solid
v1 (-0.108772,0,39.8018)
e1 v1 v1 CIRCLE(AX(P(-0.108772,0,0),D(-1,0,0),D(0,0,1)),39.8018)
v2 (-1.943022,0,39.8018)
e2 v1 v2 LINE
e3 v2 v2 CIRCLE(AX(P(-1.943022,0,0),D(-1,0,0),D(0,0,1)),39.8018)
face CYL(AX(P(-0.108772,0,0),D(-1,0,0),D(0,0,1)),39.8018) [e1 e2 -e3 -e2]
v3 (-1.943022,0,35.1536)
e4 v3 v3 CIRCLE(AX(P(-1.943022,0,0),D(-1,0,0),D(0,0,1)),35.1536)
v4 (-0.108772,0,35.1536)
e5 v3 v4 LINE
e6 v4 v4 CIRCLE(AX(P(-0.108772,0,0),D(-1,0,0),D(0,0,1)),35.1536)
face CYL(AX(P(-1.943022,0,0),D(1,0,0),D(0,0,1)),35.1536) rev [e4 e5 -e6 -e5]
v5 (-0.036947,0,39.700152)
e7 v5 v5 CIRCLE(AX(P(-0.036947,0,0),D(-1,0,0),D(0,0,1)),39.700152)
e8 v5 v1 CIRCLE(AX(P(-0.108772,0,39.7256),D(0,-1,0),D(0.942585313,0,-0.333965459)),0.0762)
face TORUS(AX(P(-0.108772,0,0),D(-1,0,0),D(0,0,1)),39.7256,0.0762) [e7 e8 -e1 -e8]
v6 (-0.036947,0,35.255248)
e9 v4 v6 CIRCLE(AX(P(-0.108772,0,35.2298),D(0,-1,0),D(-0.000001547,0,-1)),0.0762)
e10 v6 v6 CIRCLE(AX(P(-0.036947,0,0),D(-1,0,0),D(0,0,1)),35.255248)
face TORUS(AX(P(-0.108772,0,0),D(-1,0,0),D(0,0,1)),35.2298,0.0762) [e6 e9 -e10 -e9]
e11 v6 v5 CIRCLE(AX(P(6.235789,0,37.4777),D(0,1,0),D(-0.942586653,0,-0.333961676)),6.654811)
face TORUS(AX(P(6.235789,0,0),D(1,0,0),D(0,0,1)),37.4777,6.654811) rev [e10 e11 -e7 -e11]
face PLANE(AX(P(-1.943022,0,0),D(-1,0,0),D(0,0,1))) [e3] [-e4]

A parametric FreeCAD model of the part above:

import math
import FreeCAD as App
import Part
import Sketcher

V = App.Vector
Q = App.Units.Quantity

doc = App.newDocument("Part")
body = doc.addObject("PartDesign::Body", "Body")

sketch1 = doc.addObject("Sketcher::SketchObject", "Sketch")
body.addObject(sketch1)
sketch1.AttachmentSupport = (doc.XZ_Plane, [""])
sketch1.MapMode = "FlatFace"
sketch1.addGeometry(Part.ArcOfCircle(Part.Circle(V(-0.11, 39.73, 0), V(0, 0, 1), 0.08), math.radians(-20), math.radians(90)), False)
sketch1.addGeometry(Part.LineSegment(V(-0.11, 39.8, 0), V(-1.94, 39.8, 0)), False)
sketch1.addGeometry(Part.LineSegment(V(-1.94, 39.8, 0), V(-1.94, 35.15, 0)), False)
sketch1.addGeometry(Part.LineSegment(V(-1.94, 35.15, 0), V(-0.11, 35.15, 0)), False)
sketch1.addGeometry(Part.ArcOfCircle(Part.Circle(V(-0.11, 35.23, 0), V(0, 0, 1), 0.08), math.radians(-90), math.radians(20)), False)
sketch1.addGeometry(Part.ArcOfCircle(Part.Circle(V(6.24, 37.48, 0), V(0, 0, 1), 6.65), math.radians(160), math.radians(200)), False)
sketch1.addConstraint(Sketcher.Constraint("Tangent", 0, 2, 1, 1))
sketch1.addConstraint(Sketcher.Constraint("Coincident", 1, 2, 2, 1))
sketch1.addConstraint(Sketcher.Constraint("Coincident", 2, 2, 3, 1))
sketch1.addConstraint(Sketcher.Constraint("Tangent", 3, 2, 4, 1))
sketch1.addConstraint(Sketcher.Constraint("Coincident", 4, 2, 5, 2))
sketch1.addConstraint(Sketcher.Constraint("Coincident", 5, 1, 0, 1))
sketch1.addConstraint(Sketcher.Constraint("Horizontal", 1))
sketch1.addConstraint(Sketcher.Constraint("Vertical", 2))
sketch1.addConstraint(Sketcher.Constraint("Horizontal", 3))
sketch1.addConstraint(Sketcher.Constraint("Equal", 0, 4))
sketch1.addConstraint(Sketcher.Constraint("Vertical", 0, 3, 4, 3))
sketch1.addConstraint(Sketcher.Constraint("Vertical", 4, 2, 5, 1))
sketch1.addConstraint(Sketcher.Constraint("Radius", 0, Q("0.003 in")))
sketch1.addConstraint(Sketcher.Constraint("DistanceY", 2, 2, 2, 1, Q("0.183 in")))
sketch1.addConstraint(Sketcher.Constraint("DistanceY", -1, 1, 0, 3, Q("1.564 in")))
sketch1.addConstraint(Sketcher.Constraint("Radius", 5, Q("6.654811 mm")))
sketch1.addConstraint(Sketcher.Constraint("DistanceX", 1, 2, 1, 1, Q("1.83425 mm")))
sketch1.addConstraint(Sketcher.Constraint("DistanceX", 0, 3, -1, 1, Q("0.108772 mm")))
sketch1.addConstraint(Sketcher.Constraint("DistanceY", -1, 1, 4, 2, Q("35.255248 mm")))
revolution = doc.addObject("PartDesign::Revolution", "Revolution")
body.addObject(revolution)
revolution.Profile = sketch1
revolution.ReferenceAxis = (sketch1, ["H_Axis"])
revolution.Angle = 360

doc.recompute()
